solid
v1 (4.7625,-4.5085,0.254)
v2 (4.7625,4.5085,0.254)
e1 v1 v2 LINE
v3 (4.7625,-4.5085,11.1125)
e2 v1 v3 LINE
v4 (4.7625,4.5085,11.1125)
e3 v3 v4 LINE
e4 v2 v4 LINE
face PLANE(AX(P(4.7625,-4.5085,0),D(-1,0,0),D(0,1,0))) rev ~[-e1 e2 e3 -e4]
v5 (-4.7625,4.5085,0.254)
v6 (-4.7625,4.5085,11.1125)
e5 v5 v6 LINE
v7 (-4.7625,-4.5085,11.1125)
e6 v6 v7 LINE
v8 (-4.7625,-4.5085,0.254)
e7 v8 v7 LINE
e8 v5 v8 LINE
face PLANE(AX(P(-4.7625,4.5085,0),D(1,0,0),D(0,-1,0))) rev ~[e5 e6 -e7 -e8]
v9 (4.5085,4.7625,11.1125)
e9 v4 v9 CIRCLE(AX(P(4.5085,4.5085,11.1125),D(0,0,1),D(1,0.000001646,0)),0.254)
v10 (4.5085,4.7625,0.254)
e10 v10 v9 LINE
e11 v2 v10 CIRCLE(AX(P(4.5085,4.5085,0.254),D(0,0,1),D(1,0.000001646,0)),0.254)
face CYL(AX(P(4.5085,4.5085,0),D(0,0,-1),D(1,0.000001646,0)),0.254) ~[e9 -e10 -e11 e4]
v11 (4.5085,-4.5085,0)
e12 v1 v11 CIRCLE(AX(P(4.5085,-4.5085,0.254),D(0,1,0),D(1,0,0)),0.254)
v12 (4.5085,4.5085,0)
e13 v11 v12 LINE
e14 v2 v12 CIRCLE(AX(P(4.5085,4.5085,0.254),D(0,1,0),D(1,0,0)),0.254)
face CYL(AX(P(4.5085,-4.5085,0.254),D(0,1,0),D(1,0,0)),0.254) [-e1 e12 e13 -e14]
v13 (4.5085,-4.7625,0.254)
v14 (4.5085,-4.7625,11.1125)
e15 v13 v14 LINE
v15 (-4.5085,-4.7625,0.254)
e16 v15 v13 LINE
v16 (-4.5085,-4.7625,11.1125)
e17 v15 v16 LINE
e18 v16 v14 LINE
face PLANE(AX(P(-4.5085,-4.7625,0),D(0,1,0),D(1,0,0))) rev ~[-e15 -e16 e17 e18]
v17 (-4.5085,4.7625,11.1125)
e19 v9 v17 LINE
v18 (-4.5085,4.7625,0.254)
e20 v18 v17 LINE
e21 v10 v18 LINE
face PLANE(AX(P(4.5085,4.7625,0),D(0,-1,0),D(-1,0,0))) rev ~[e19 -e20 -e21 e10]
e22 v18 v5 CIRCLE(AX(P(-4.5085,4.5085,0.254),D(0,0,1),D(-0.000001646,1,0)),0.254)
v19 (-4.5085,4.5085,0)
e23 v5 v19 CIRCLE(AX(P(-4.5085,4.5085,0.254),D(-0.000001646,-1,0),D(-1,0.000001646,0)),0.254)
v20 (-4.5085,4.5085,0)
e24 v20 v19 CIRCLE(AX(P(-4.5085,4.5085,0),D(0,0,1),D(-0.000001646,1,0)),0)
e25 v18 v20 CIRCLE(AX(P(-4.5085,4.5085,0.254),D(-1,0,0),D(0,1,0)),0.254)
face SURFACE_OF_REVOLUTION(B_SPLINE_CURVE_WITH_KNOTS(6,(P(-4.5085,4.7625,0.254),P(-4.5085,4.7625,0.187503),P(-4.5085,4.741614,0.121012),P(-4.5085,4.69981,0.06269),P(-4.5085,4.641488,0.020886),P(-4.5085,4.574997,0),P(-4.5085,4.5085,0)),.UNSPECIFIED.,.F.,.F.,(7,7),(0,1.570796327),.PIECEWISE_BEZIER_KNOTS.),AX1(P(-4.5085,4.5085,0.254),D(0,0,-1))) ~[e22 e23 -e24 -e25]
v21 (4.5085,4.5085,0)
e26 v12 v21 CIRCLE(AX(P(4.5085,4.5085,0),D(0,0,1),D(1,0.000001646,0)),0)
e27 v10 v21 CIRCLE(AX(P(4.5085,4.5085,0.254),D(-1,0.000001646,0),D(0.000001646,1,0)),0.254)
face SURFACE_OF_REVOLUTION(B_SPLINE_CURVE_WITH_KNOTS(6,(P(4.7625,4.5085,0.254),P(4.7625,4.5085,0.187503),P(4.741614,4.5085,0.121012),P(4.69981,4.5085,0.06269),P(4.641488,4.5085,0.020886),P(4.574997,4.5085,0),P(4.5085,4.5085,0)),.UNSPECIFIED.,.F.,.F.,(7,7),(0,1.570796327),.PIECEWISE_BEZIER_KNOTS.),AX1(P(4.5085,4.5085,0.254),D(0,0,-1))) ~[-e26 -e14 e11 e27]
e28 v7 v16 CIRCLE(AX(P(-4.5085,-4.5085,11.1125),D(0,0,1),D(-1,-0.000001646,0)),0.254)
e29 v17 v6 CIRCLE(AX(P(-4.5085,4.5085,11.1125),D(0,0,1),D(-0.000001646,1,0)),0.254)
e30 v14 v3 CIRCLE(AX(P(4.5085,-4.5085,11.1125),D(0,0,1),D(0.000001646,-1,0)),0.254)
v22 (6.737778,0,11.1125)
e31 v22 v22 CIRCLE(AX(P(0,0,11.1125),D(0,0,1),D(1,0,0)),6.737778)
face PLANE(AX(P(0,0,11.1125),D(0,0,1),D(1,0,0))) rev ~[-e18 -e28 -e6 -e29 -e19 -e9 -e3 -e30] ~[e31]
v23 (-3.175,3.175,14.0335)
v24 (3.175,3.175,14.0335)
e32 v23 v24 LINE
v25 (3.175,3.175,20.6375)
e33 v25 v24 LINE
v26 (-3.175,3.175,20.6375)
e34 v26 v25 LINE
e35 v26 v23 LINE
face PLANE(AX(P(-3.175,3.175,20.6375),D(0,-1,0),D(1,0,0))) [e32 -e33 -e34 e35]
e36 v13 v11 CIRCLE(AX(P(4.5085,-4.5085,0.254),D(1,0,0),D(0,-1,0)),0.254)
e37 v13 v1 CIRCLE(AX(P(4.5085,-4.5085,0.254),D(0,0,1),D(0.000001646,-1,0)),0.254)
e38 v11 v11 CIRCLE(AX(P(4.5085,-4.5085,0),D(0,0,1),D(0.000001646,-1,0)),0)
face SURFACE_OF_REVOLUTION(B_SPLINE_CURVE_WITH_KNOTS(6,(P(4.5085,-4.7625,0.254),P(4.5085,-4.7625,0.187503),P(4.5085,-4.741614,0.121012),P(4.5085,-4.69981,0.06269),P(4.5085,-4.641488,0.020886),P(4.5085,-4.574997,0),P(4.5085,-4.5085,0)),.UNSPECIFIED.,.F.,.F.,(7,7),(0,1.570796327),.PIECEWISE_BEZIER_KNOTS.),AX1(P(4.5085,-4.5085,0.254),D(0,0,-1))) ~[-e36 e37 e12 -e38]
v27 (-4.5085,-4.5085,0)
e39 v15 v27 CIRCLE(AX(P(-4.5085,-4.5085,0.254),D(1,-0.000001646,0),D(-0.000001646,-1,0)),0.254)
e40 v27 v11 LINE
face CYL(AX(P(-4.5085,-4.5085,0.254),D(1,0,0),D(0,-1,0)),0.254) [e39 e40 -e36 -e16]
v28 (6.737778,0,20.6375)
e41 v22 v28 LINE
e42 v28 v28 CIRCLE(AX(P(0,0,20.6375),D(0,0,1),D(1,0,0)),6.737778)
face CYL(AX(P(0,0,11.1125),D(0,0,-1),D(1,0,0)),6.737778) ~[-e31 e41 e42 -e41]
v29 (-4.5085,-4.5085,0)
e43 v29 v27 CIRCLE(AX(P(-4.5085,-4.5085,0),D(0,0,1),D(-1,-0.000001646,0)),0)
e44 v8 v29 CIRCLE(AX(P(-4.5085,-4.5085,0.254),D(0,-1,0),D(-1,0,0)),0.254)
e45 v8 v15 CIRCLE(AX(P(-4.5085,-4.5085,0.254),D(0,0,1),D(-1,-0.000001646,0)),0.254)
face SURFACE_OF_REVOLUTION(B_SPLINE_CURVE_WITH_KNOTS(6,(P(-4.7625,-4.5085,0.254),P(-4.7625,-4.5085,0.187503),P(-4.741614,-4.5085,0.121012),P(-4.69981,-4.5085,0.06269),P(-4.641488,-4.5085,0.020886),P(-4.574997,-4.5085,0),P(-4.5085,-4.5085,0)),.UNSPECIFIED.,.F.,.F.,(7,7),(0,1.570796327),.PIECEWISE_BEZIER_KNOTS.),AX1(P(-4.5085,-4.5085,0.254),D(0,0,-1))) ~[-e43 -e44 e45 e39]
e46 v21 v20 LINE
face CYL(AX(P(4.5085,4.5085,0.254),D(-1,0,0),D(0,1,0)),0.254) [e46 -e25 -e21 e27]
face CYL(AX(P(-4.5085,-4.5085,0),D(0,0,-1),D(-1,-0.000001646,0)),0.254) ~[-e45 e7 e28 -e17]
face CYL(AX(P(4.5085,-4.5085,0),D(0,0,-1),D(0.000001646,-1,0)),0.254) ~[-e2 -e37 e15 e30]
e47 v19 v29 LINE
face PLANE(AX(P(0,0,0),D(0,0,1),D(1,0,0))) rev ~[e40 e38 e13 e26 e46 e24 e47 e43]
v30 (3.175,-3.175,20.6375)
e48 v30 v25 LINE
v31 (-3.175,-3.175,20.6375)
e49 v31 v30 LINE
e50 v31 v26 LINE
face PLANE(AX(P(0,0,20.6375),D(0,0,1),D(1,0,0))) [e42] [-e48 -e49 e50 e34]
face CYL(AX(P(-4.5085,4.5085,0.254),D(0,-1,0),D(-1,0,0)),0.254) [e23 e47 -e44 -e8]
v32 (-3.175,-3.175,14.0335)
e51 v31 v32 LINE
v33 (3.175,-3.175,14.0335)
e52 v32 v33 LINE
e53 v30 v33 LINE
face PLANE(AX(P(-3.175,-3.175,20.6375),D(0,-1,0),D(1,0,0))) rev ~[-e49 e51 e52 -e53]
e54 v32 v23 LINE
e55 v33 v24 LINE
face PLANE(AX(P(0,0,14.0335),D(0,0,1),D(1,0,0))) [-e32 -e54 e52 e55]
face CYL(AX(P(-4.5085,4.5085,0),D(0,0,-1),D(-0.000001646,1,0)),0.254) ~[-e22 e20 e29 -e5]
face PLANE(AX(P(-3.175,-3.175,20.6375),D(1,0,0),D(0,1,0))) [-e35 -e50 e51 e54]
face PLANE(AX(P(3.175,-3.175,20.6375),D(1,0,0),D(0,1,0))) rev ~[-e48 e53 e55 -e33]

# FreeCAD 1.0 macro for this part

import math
import FreeCAD as App
import Part
import Sketcher
from FreeCAD import Vector
Q = App.Units.Quantity


def edges_at(feature, points):
    """Names of the edges that pass closest to the given points."""
    edges = feature.Shape.Edges
    near = lambda p: min(range(len(edges)), key=lambda i: edges[i].distToShape(Part.Vertex(*p))[0])
    return sorted({f"Edge{near(p) + 1}" for p in points})

doc = App.newDocument("Part")
params = doc.addObject("Spreadsheet::Sheet", "Params")
for row, (alias, value) in enumerate([
    ("sketch1_radius", "0.01 in"),
    ("sketch1_width", "0.355 in"),
    ("pad1_length", "0.4375 in"),
    ("fillet_radius", "0.01 in"),
    ("pad2_length", "0.375 in"),
    ("sketch3_width", "0.25 in"),
    ("pocket1_length", "0.26 in"),
], start=1):
    params.set(f"A{row}", alias)
    params.set(f"B{row}", "=" + value)
    params.setAlias(f"B{row}", alias)

body = doc.addObject("PartDesign::Body", "Body")

sketch1 = body.newObject("Sketcher::SketchObject", "Sketch")
sketch1.AttachmentSupport = (doc.getObject("XY_Plane"), [""])
sketch1.MapMode = "FlatFace"
sketch1.addGeometry([
    Part.ArcOfCircle(Part.Circle(Vector(4.5085, 4.5085, 0), Vector(0, 0, 1), 0.254), math.radians(0.000094), math.radians(89.999906)),
    Part.LineSegment(Vector(4.5085, 4.7625, 0), Vector(-4.5085, 4.7625, 0)),
    Part.ArcOfCircle(Part.Circle(Vector(-4.5085, 4.5085, 0), Vector(0, 0, 1), 0.254), math.radians(90.000094), math.radians(179.999906)),
    Part.LineSegment(Vector(-4.7625, 4.5085, 0), Vector(-4.7625, -4.5085, 0)),
    Part.ArcOfCircle(Part.Circle(Vector(-4.5085, -4.5085, 0), Vector(0, 0, 1), 0.254), math.radians(-179.999906), math.radians(-90.000094)),
    Part.LineSegment(Vector(-4.5085, -4.7625, 0), Vector(4.5085, -4.7625, 0)),
    Part.ArcOfCircle(Part.Circle(Vector(4.5085, -4.5085, 0), Vector(0, 0, 1), 0.254), math.radians(-89.999906), math.radians(-0.000094)),
    Part.LineSegment(Vector(4.7625, -4.5085, 0), Vector(4.7625, 4.5085, 0)),
], False)
sketch1.addConstraint([
    Sketcher.Constraint("Tangent", 0, 2, 1, 1),
    Sketcher.Constraint("Tangent", 1, 2, 2, 1),
    Sketcher.Constraint("Tangent", 2, 2, 3, 1),
    Sketcher.Constraint("Tangent", 3, 2, 4, 1),
    Sketcher.Constraint("Tangent", 4, 2, 5, 1),
    Sketcher.Constraint("Tangent", 5, 2, 6, 1),
    Sketcher.Constraint("Tangent", 6, 2, 7, 1),
    Sketcher.Constraint("Tangent", 7, 2, 0, 1),
    Sketcher.Constraint("Horizontal", 1),
    Sketcher.Constraint("Vertical", 3),
    Sketcher.Constraint("Horizontal", 5),
    Sketcher.Constraint("Vertical", 7),
    Sketcher.Constraint("Equal", 0, 2),
    Sketcher.Constraint("Equal", 2, 4),
    Sketcher.Constraint("Equal", 4, 6),
    Sketcher.Constraint("Symmetric", 0, 3, 4, 3, -1, 1),
    Sketcher.Constraint("Equal", 5, 3),
    Sketcher.Constraint("Radius", 0, Q("0.01 in")),
    Sketcher.Constraint("DistanceX", 1, 2, 1, 1, Q("0.355 in")),
])
sketch1.setExpression("Constraints[17]", "Params.sketch1_radius")
sketch1.setExpression("Constraints[18]", "Params.sketch1_width")
pad1 = body.newObject("PartDesign::Pad", "Pad")
pad1.Profile = sketch1
pad1.setExpression("Length", "Params.pad1_length")
doc.recompute()

fillet = body.newObject("PartDesign::Fillet", "Fillet")
fillet.Base = (pad1, edges_at(pad1, [(4.763, 0, 0)]))
fillet.setExpression("Radius", "Params.fillet_radius")

sketch2 = body.newObject("Sketcher::SketchObject", "Sketch001")
sketch2.AttachmentSupport = (doc.getObject("XY_Plane"), [""])
sketch2.MapMode = "FlatFace"
sketch2.AttachmentOffset = App.Placement(Vector(0, 0, 0.4375 * 25.4), App.Rotation())
sketch2.addGeometry(Part.Circle(Vector(0, 0, 0), Vector(0, 0, 1), 6.737778), False)
sketch2.addConstraint([
    Sketcher.Constraint("Coincident", 0, 3, -1, 1),
    Sketcher.Constraint("Diameter", 0, 13.475556),
])
pad2 = body.newObject("PartDesign::Pad", "Pad001")
pad2.Profile = sketch2
pad2.setExpression("Length", "Params.pad2_length")

sketch3 = body.newObject("Sketcher::SketchObject", "Sketch002")
sketch3.AttachmentSupport = (doc.getObject("XY_Plane"), [""])
sketch3.MapMode = "FlatFace"
sketch3.AttachmentOffset = App.Placement(Vector(0, 0, 0.8125 * 25.4), App.Rotation())
sketch3.addGeometry([
    Part.LineSegment(Vector(-3.175, 3.175, 0), Vector(-3.175, -3.175, 0)),
    Part.LineSegment(Vector(-3.175, -3.175, 0), Vector(3.175, -3.175, 0)),
    Part.LineSegment(Vector(3.175, -3.175, 0), Vector(3.175, 3.175, 0)),
    Part.LineSegment(Vector(3.175, 3.175, 0), Vector(-3.175, 3.175, 0)),
], False)
sketch3.addConstraint([
    Sketcher.Constraint("Coincident", 0, 2, 1, 1),
    Sketcher.Constraint("Coincident", 1, 2, 2, 1),
    Sketcher.Constraint("Coincident", 2, 2, 3, 1),
    Sketcher.Constraint("Coincident", 3, 2, 0, 1),
    Sketcher.Constraint("Vertical", 0),
    Sketcher.Constraint("Horizontal", 1),
    Sketcher.Constraint("Vertical", 2),
    Sketcher.Constraint("Horizontal", 3),
    Sketcher.Constraint("Symmetric", 0, 2, 2, 2, -1, 1),
    Sketcher.Constraint("Equal", 3, 0),
    Sketcher.Constraint("DistanceX", 1, 1, 1, 2, Q("0.25 in")),
])
sketch3.setExpression("Constraints[10]", "Params.sketch3_width")
pocket1 = body.newObject("PartDesign::Pocket", "Pocket")
pocket1.Profile = sketch3
pocket1.setExpression("Length", "Params.pocket1_length")

doc.recompute()
